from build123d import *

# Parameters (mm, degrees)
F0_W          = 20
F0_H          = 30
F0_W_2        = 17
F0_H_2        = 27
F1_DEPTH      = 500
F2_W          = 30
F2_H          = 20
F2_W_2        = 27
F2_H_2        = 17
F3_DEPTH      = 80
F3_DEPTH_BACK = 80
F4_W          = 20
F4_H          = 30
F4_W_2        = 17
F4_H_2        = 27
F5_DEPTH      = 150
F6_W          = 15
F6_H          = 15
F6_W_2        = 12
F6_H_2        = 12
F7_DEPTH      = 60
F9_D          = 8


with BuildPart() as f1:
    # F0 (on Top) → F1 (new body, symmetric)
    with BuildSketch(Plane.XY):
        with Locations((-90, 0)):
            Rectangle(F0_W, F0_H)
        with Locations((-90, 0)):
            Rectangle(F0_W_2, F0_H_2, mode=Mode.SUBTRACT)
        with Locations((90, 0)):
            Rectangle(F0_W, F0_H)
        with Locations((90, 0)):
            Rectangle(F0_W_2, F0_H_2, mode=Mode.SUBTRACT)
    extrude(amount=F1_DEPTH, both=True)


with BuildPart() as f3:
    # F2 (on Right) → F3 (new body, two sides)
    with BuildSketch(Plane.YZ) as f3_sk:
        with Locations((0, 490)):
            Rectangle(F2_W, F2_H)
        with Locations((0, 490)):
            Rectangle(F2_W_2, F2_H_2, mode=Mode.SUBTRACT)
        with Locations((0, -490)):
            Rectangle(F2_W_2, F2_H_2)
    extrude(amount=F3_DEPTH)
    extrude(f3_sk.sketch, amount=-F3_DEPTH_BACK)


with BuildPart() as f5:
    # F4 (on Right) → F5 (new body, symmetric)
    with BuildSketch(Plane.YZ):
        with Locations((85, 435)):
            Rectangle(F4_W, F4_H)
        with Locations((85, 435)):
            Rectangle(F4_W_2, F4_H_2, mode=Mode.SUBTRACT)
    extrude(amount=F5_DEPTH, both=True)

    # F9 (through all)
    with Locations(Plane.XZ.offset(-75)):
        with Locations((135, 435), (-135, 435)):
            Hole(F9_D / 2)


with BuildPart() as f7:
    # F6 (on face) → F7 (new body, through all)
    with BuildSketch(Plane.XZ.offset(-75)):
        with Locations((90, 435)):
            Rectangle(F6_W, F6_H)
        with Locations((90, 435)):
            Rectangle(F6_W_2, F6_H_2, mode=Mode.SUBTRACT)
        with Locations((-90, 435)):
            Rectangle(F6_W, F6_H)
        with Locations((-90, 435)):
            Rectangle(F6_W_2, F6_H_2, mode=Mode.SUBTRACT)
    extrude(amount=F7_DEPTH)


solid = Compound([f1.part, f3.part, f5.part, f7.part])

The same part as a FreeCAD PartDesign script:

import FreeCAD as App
import Part
import Sketcher

doc = App.newDocument("Part")
params = doc.addObject("Spreadsheet::Sheet", "Params")
for row, (alias, value) in enumerate([
    ("sketch1_width", "20 mm"),
    ("sketch1_width2", "17 mm"),
    ("sketch1_height", "30 mm"),
    ("sketch1_height2", "27 mm"),
    ("pad1_length", "1000 mm"),
    ("sketch2_width", "30 mm"),
    ("sketch2_width2", "27 mm"),
    ("sketch2_height", "20 mm"),
    ("sketch2_height2", "17 mm"),
    ("pad2_length", "80 mm"),
    ("pad2_length2", "80 mm"),
    ("sketch3_width", "20 mm"),
    ("sketch3_width2", "17 mm"),
    ("sketch3_height", "30 mm"),
    ("sketch3_height2", "27 mm"),
    ("pad3_length", "300 mm"),
    ("sketch4_diameter", "8 mm"),
    ("hole_diameter", "8 mm"),
    ("sketch5_width", "15 mm"),
    ("sketch5_width2", "12 mm"),
    ("pad4_length", "60 mm"),
], start=1):
    params.set(f"A{row}", alias)
    params.set(f"B{row}", "=" + value)
    params.setAlias(f"B{row}", alias)

body = doc.addObject("PartDesign::Body", "Body")
body.AllowCompound = True

sketch1 = body.newObject("Sketcher::SketchObject", "Sketch")
sketch1.AttachmentSupport = (doc.getObject("XY_Plane"), [""])
sketch1.MapMode = "FlatFace"
sketch1.addGeometry(Part.LineSegment(App.Vector(-100, 15, 0), App.Vector(-100, -15, 0)), False)
sketch1.addGeometry(Part.LineSegment(App.Vector(-100, -15, 0), App.Vector(-80, -15, 0)), False)
sketch1.addGeometry(Part.LineSegment(App.Vector(-80, -15, 0), App.Vector(-80, 15, 0)), False)
sketch1.addGeometry(Part.LineSegment(App.Vector(-80, 15, 0), App.Vector(-100, 15, 0)), False)
sketch1.addGeometry(Part.LineSegment(App.Vector(-81.5, -13.5, 0), App.Vector(-98.5, -13.5, 0)), False)
sketch1.addGeometry(Part.LineSegment(App.Vector(-98.5, -13.5, 0), App.Vector(-98.5, 13.5, 0)), False)
sketch1.addGeometry(Part.LineSegment(App.Vector(-98.5, 13.5, 0), App.Vector(-81.5, 13.5, 0)), False)
sketch1.addGeometry(Part.LineSegment(App.Vector(-81.5, 13.5, 0), App.Vector(-81.5, -13.5, 0)), False)
sketch1.addGeometry(Part.LineSegment(App.Vector(80, 15, 0), App.Vector(80, -15, 0)), False)
sketch1.addGeometry(Part.LineSegment(App.Vector(80, -15, 0), App.Vector(100, -15, 0)), False)
sketch1.addGeometry(Part.LineSegment(App.Vector(100, -15, 0), App.Vector(100, 15, 0)), False)
sketch1.addGeometry(Part.LineSegment(App.Vector(100, 15, 0), App.Vector(80, 15, 0)), False)
sketch1.addGeometry(Part.LineSegment(App.Vector(98.5, -13.5, 0), App.Vector(81.5, -13.5, 0)), False)
sketch1.addGeometry(Part.LineSegment(App.Vector(81.5, -13.5, 0), App.Vector(81.5, 13.5, 0)), False)
sketch1.addGeometry(Part.LineSegment(App.Vector(81.5, 13.5, 0), App.Vector(98.5, 13.5, 0)), False)
sketch1.addGeometry(Part.LineSegment(App.Vector(98.5, 13.5, 0), App.Vector(98.5, -13.5, 0)), False)
sketch1.addConstraint(Sketcher.Constraint("Coincident", 0, 2, 1, 1))
sketch1.addConstraint(Sketcher.Constraint("Coincident", 1, 2, 2, 1))
sketch1.addConstraint(Sketcher.Constraint("Coincident", 2, 2, 3, 1))
sketch1.addConstraint(Sketcher.Constraint("Coincident", 3, 2, 0, 1))
sketch1.addConstraint(Sketcher.Constraint("Coincident", 4, 2, 5, 1))
sketch1.addConstraint(Sketcher.Constraint("Coincident", 5, 2, 6, 1))
sketch1.addConstraint(Sketcher.Constraint("Coincident", 6, 2, 7, 1))
sketch1.addConstraint(Sketcher.Constraint("Coincident", 7, 2, 4, 1))
sketch1.addConstraint(Sketcher.Constraint("Coincident", 8, 2, 9, 1))
sketch1.addConstraint(Sketcher.Constraint("Coincident", 9, 2, 10, 1))
sketch1.addConstraint(Sketcher.Constraint("Coincident", 10, 2, 11, 1))
sketch1.addConstraint(Sketcher.Constraint("Coincident", 11, 2, 8, 1))
sketch1.addConstraint(Sketcher.Constraint("Coincident", 12, 2, 13, 1))
sketch1.addConstraint(Sketcher.Constraint("Coincident", 13, 2, 14, 1))
sketch1.addConstraint(Sketcher.Constraint("Coincident", 14, 2, 15, 1))
sketch1.addConstraint(Sketcher.Constraint("Coincident", 15, 2, 12, 1))
sketch1.addConstraint(Sketcher.Constraint("Vertical", 0))
sketch1.addConstraint(Sketcher.Constraint("Horizontal", 1))
sketch1.addConstraint(Sketcher.Constraint("Vertical", 2))
sketch1.addConstraint(Sketcher.Constraint("Horizontal", 3))
sketch1.addConstraint(Sketcher.Constraint("Horizontal", 4))
sketch1.addConstraint(Sketcher.Constraint("Vertical", 5))
sketch1.addConstraint(Sketcher.Constraint("Horizontal", 6))
sketch1.addConstraint(Sketcher.Constraint("Vertical", 7))
sketch1.addConstraint(Sketcher.Constraint("Vertical", 8))
sketch1.addConstraint(Sketcher.Constraint("Horizontal", 9))
sketch1.addConstraint(Sketcher.Constraint("Vertical", 10))
sketch1.addConstraint(Sketcher.Constraint("Horizontal", 11))
sketch1.addConstraint(Sketcher.Constraint("Horizontal", 12))
sketch1.addConstraint(Sketcher.Constraint("Vertical", 13))
sketch1.addConstraint(Sketcher.Constraint("Horizontal", 14))
sketch1.addConstraint(Sketcher.Constraint("Vertical", 15))
sketch1.addConstraint(Sketcher.Constraint("Symmetric", 2, 2, 8, 2, -1, 1))
sketch1.addConstraint(Sketcher.Constraint("Symmetric", 0, 2, 10, 2, -1, 1))
sketch1.addConstraint(Sketcher.Constraint("Symmetric", 6, 2, 12, 2, -1, 1))
sketch1.addConstraint(Sketcher.Constraint("Symmetric", 4, 2, 14, 2, -1, 1))
sketch1.addConstraint(Sketcher.Constraint("Horizontal", 1, 2, 8, 2))
sketch1.addConstraint(Sketcher.Constraint("Horizontal", 7, 2, 12, 2))
sketch1.addConstraint(Sketcher.Constraint("DistanceX", 1, 1, 1, 2, 20.0))
sketch1.addConstraint(Sketcher.Constraint("DistanceX", 4, 2, 4, 1, 17.0))
sketch1.addConstraint(Sketcher.Constraint("DistanceY", 0, 2, 0, 1, 30.0))
sketch1.addConstraint(Sketcher.Constraint("DistanceY", 5, 1, 5, 2, 27.0))
sketch1.addConstraint(Sketcher.Constraint("DistanceX", 0, 2, -1, 1, 100.0))
sketch1.addConstraint(Sketcher.Constraint("DistanceX", 4, 2, -1, 1, 98.5))
sketch1.setExpression("Constraints[38]", "Params.sketch1_width")
sketch1.setExpression("Constraints[39]", "Params.sketch1_width2")
sketch1.setExpression("Constraints[40]", "Params.sketch1_height")
sketch1.setExpression("Constraints[41]", "Params.sketch1_height2")
pad1 = body.newObject("PartDesign::Pad", "Pad")
pad1.Profile = sketch1
pad1.setExpression("Length", "Params.pad1_length")
pad1.Midplane = True
body2 = doc.addObject("PartDesign::Body", "Body001")
body2.AllowCompound = True

sketch2 = body2.newObject("Sketcher::SketchObject", "Sketch001")
sketch2.AttachmentSupport = (doc.getObject("YZ_Plane001"), [""])
sketch2.MapMode = "FlatFace"
sketch2.addGeometry(Part.LineSegment(App.Vector(-15, 500, 0), App.Vector(-15, 480, 0)), False)
sketch2.addGeometry(Part.LineSegment(App.Vector(-15, 480, 0), App.Vector(15, 480, 0)), False)
sketch2.addGeometry(Part.LineSegment(App.Vector(15, 480, 0), App.Vector(15, 500, 0)), False)
sketch2.addGeometry(Part.LineSegment(App.Vector(15, 500, 0), App.Vector(-15, 500, 0)), False)
sketch2.addGeometry(Part.LineSegment(App.Vector(13.5, 481.5, 0), App.Vector(-13.5, 481.5, 0)), False)
sketch2.addGeometry(Part.LineSegment(App.Vector(-13.5, 481.5, 0), App.Vector(-13.5, 498.5, 0)), False)
sketch2.addGeometry(Part.LineSegment(App.Vector(-13.5, 498.5, 0), App.Vector(13.5, 498.5, 0)), False)
sketch2.addGeometry(Part.LineSegment(App.Vector(13.5, 498.5, 0), App.Vector(13.5, 481.5, 0)), False)
sketch2.addGeometry(Part.LineSegment(App.Vector(-13.5, -481.5, 0), App.Vector(-13.5, -498.5, 0)), False)
sketch2.addGeometry(Part.LineSegment(App.Vector(-13.5, -498.5, 0), App.Vector(13.5, -498.5, 0)), False)
sketch2.addGeometry(Part.LineSegment(App.Vector(13.5, -498.5, 0), App.Vector(13.5, -481.5, 0)), False)
sketch2.addGeometry(Part.LineSegment(App.Vector(13.5, -481.5, 0), App.Vector(-13.5, -481.5, 0)), False)
sketch2.addConstraint(Sketcher.Constraint("Coincident", 0, 2, 1, 1))
sketch2.addConstraint(Sketcher.Constraint("Coincident", 1, 2, 2, 1))
sketch2.addConstraint(Sketcher.Constraint("Coincident", 2, 2, 3, 1))
sketch2.addConstraint(Sketcher.Constraint("Coincident", 3, 2, 0, 1))
sketch2.addConstraint(Sketcher.Constraint("Coincident", 4, 2, 5, 1))
sketch2.addConstraint(Sketcher.Constraint("Coincident", 5, 2, 6, 1))
sketch2.addConstraint(Sketcher.Constraint("Coincident", 6, 2, 7, 1))
sketch2.addConstraint(Sketcher.Constraint("Coincident", 7, 2, 4, 1))
sketch2.addConstraint(Sketcher.Constraint("Coincident", 8, 2, 9, 1))
sketch2.addConstraint(Sketcher.Constraint("Coincident", 9, 2, 10, 1))
sketch2.addConstraint(Sketcher.Constraint("Coincident", 10, 2, 11, 1))
sketch2.addConstraint(Sketcher.Constraint("Coincident", 11, 2, 8, 1))
sketch2.addConstraint(Sketcher.Constraint("Vertical", 0))
sketch2.addConstraint(Sketcher.Constraint("Horizontal", 1))
sketch2.addConstraint(Sketcher.Constraint("Vertical", 2))
sketch2.addConstraint(Sketcher.Constraint("Horizontal", 3))
sketch2.addConstraint(Sketcher.Constraint("Horizontal", 4))
sketch2.addConstraint(Sketcher.Constraint("Vertical", 5))
sketch2.addConstraint(Sketcher.Constraint("Horizontal", 6))
sketch2.addConstraint(Sketcher.Constraint("Vertical", 7))
sketch2.addConstraint(Sketcher.Constraint("Vertical", 8))
sketch2.addConstraint(Sketcher.Constraint("Horizontal", 9))
sketch2.addConstraint(Sketcher.Constraint("Vertical", 10))
sketch2.addConstraint(Sketcher.Constraint("Horizontal", 11))
sketch2.addConstraint(Sketcher.Constraint("Symmetric", 6, 2, 8, 2, -1, 1))
sketch2.addConstraint(Sketcher.Constraint("Symmetric", 4, 2, 10, 2, -1, 1))
sketch2.addConstraint(Sketcher.Constraint("Vertical", 5, 2, 8, 2))
sketch2.addConstraint(Sketcher.Constraint("DistanceX", 1, 1, 1, 2, 30.0))
sketch2.addConstraint(Sketcher.Constraint("DistanceX", 4, 2, 4, 1, 27.0))
sketch2.addConstraint(Sketcher.Constraint("DistanceY", 0, 2, 0, 1, 20.0))
sketch2.addConstraint(Sketcher.Constraint("DistanceY", 5, 1, 5, 2, 17.0))
sketch2.addConstraint(Sketcher.Constraint("DistanceX", 0, 2, -1, 1, 15.0))
sketch2.addConstraint(Sketcher.Constraint("DistanceY", -1, 1, 0, 2, 480.0))
sketch2.addConstraint(Sketcher.Constraint("DistanceY", 8, 2, 4, 2, 980.0))
sketch2.setExpression("Constraints[27]", "Params.sketch2_width")
sketch2.setExpression("Constraints[28]", "Params.sketch2_width2")
sketch2.setExpression("Constraints[29]", "Params.sketch2_height")
sketch2.setExpression("Constraints[30]", "Params.sketch2_height2")
pad2 = body2.newObject("PartDesign::Pad", "Pad001")
pad2.Profile = sketch2
pad2.Type = "TwoLengths"
pad2.setExpression("Length", "Params.pad2_length")
pad2.setExpression("Length2", "Params.pad2_length2")
body3 = doc.addObject("PartDesign::Body", "Body002")

sketch3 = body3.newObject("Sketcher::SketchObject", "Sketch002")
sketch3.AttachmentSupport = (doc.getObject("YZ_Plane002"), [""])
sketch3.MapMode = "FlatFace"
sketch3.addGeometry(Part.LineSegment(App.Vector(75, 450, 0), App.Vector(75, 420, 0)), False)
sketch3.addGeometry(Part.LineSegment(App.Vector(75, 420, 0), App.Vector(95, 420, 0)), False)
sketch3.addGeometry(Part.LineSegment(App.Vector(95, 420, 0), App.Vector(95, 450, 0)), False)
sketch3.addGeometry(Part.LineSegment(App.Vector(95, 450, 0), App.Vector(75, 450, 0)), False)
sketch3.addGeometry(Part.LineSegment(App.Vector(93.5, 421.5, 0), App.Vector(76.5, 421.5, 0)), False)
sketch3.addGeometry(Part.LineSegment(App.Vector(76.5, 421.5, 0), App.Vector(76.5, 448.5, 0)), False)
sketch3.addGeometry(Part.LineSegment(App.Vector(76.5, 448.5, 0), App.Vector(93.5, 448.5, 0)), False)
sketch3.addGeometry(Part.LineSegment(App.Vector(93.5, 448.5, 0), App.Vector(93.5, 421.5, 0)), False)
sketch3.addConstraint(Sketcher.Constraint("Coincident", 0, 2, 1, 1))
sketch3.addConstraint(Sketcher.Constraint("Coincident", 1, 2, 2, 1))
sketch3.addConstraint(Sketcher.Constraint("Coincident", 2, 2, 3, 1))
sketch3.addConstraint(Sketcher.Constraint("Coincident", 3, 2, 0, 1))
sketch3.addConstraint(Sketcher.Constraint("Coincident", 4, 2, 5, 1))
sketch3.addConstraint(Sketcher.Constraint("Coincident", 5, 2, 6, 1))
sketch3.addConstraint(Sketcher.Constraint("Coincident", 6, 2, 7, 1))
sketch3.addConstraint(Sketcher.Constraint("Coincident", 7, 2, 4, 1))
sketch3.addConstraint(Sketcher.Constraint("Vertical", 0))
sketch3.addConstraint(Sketcher.Constraint("Horizontal", 1))
sketch3.addConstraint(Sketcher.Constraint("Vertical", 2))
sketch3.addConstraint(Sketcher.Constraint("Horizontal", 3))
sketch3.addConstraint(Sketcher.Constraint("Horizontal", 4))
sketch3.addConstraint(Sketcher.Constraint("Vertical", 5))
sketch3.addConstraint(Sketcher.Constraint("Horizontal", 6))
sketch3.addConstraint(Sketcher.Constraint("Vertical", 7))
sketch3.addConstraint(Sketcher.Constraint("DistanceX", 1, 1, 1, 2, 20.0))
sketch3.addConstraint(Sketcher.Constraint("DistanceX", 4, 2, 4, 1, 17.0))
sketch3.addConstraint(Sketcher.Constraint("DistanceY", 0, 2, 0, 1, 30.0))
sketch3.addConstraint(Sketcher.Constraint("DistanceY", 5, 1, 5, 2, 27.0))
sketch3.addConstraint(Sketcher.Constraint("DistanceX", -1, 1, 0, 2, 75.0))
sketch3.addConstraint(Sketcher.Constraint("DistanceY", -1, 1, 0, 2, 420.0))
sketch3.addConstraint(Sketcher.Constraint("DistanceX", -1, 1, 4, 2, 76.5))
sketch3.addConstraint(Sketcher.Constraint("DistanceY", -1, 1, 4, 2, 421.5))
sketch3.setExpression("Constraints[16]", "Params.sketch3_width")
sketch3.setExpression("Constraints[17]", "Params.sketch3_width2")
sketch3.setExpression("Constraints[18]", "Params.sketch3_height")
sketch3.setExpression("Constraints[19]", "Params.sketch3_height2")
pad3 = body3.newObject("PartDesign::Pad", "Pad002")
pad3.Profile = sketch3
pad3.setExpression("Length", "Params.pad3_length")
pad3.Midplane = True

sketch4 = body3.newObject("Sketcher::SketchObject", "Sketch003")
sketch4.AttachmentSupport = (doc.getObject("XZ_Plane002"), [""])
sketch4.MapMode = "FlatFace"
sketch4.AttachmentOffset = App.Placement(App.Vector(0, 0, -75), App.Rotation())
sketch4.addGeometry(Part.Circle(App.Vector(135, 435, 0), App.Vector(0, 0, 1), 4), False)
sketch4.addGeometry(Part.Circle(App.Vector(-135, 435, 0), App.Vector(0, 0, 1), 4), False)
sketch4.addConstraint(Sketcher.Constraint("Equal", 0, 1))
sketch4.addConstraint(Sketcher.Constraint("Symmetric", 0, 3, 1, 3, -2))
sketch4.addConstraint(Sketcher.Constraint("Diameter", 0, 8.0))
sketch4.addConstraint(Sketcher.Constraint("DistanceX", -1, 1, 0, 3, 135.0))
sketch4.addConstraint(Sketcher.Constraint("DistanceY", -1, 1, 0, 3, 435.0))
sketch4.setExpression("Constraints[2]", "Params.sketch4_diameter")
doc.recompute()
hole = body3.newObject("PartDesign::Hole", "Hole")
hole.Profile = sketch4
hole.ThreadType = "None"
hole.setExpression("Diameter", "Params.hole_diameter")
hole.DepthType = "ThroughAll"
body4 = doc.addObject("PartDesign::Body", "Body003")
body4.AllowCompound = True

sketch5 = body4.newObject("Sketcher::SketchObject", "Sketch004")
sketch5.AttachmentSupport = (doc.getObject("XZ_Plane003"), [""])
sketch5.MapMode = "FlatFace"
sketch5.AttachmentOffset = App.Placement(App.Vector(0, 0, -75), App.Rotation())
sketch5.addGeometry(Part.LineSegment(App.Vector(82.5, 442.5, 0), App.Vector(82.5, 427.5, 0)), False)
sketch5.addGeometry(Part.LineSegment(App.Vector(82.5, 427.5, 0), App.Vector(97.5, 427.5, 0)), False)
sketch5.addGeometry(Part.LineSegment(App.Vector(97.5, 427.5, 0), App.Vector(97.5, 442.5, 0)), False)
sketch5.addGeometry(Part.LineSegment(App.Vector(97.5, 442.5, 0), App.Vector(82.5, 442.5, 0)), False)
sketch5.addGeometry(Part.LineSegment(App.Vector(96, 429, 0), App.Vector(84, 429, 0)), False)
sketch5.addGeometry(Part.LineSegment(App.Vector(84, 429, 0), App.Vector(84, 441, 0)), False)
sketch5.addGeometry(Part.LineSegment(App.Vector(84, 441, 0), App.Vector(96, 441, 0)), False)
sketch5.addGeometry(Part.LineSegment(App.Vector(96, 441, 0), App.Vector(96, 429, 0)), False)
sketch5.addGeometry(Part.LineSegment(App.Vector(-97.5, 442.5, 0), App.Vector(-97.5, 427.5, 0)), False)
sketch5.addGeometry(Part.LineSegment(App.Vector(-97.5, 427.5, 0), App.Vector(-82.5, 427.5, 0)), False)
sketch5.addGeometry(Part.LineSegment(App.Vector(-82.5, 427.5, 0), App.Vector(-82.5, 442.5, 0)), False)
sketch5.addGeometry(Part.LineSegment(App.Vector(-82.5, 442.5, 0), App.Vector(-97.5, 442.5, 0)), False)
sketch5.addGeometry(Part.LineSegment(App.Vector(-84, 429, 0), App.Vector(-96, 429, 0)), False)
sketch5.addGeometry(Part.LineSegment(App.Vector(-96, 429, 0), App.Vector(-96, 441, 0)), False)
sketch5.addGeometry(Part.LineSegment(App.Vector(-96, 441, 0), App.Vector(-84, 441, 0)), False)
sketch5.addGeometry(Part.LineSegment(App.Vector(-84, 441, 0), App.Vector(-84, 429, 0)), False)
sketch5.addConstraint(Sketcher.Constraint("Coincident", 0, 2, 1, 1))
sketch5.addConstraint(Sketcher.Constraint("Coincident", 1, 2, 2, 1))
sketch5.addConstraint(Sketcher.Constraint("Coincident", 2, 2, 3, 1))
sketch5.addConstraint(Sketcher.Constraint("Coincident", 3, 2, 0, 1))
sketch5.addConstraint(Sketcher.Constraint("Coincident", 4, 2, 5, 1))
sketch5.addConstraint(Sketcher.Constraint("Coincident", 5, 2, 6, 1))
sketch5.addConstraint(Sketcher.Constraint("Coincident", 6, 2, 7, 1))
sketch5.addConstraint(Sketcher.Constraint("Coincident", 7, 2, 4, 1))
sketch5.addConstraint(Sketcher.Constraint("Coincident", 8, 2, 9, 1))
sketch5.addConstraint(Sketcher.Constraint("Coincident", 9, 2, 10, 1))
sketch5.addConstraint(Sketcher.Constraint("Coincident", 10, 2, 11, 1))
sketch5.addConstraint(Sketcher.Constraint("Coincident", 11, 2, 8, 1))
sketch5.addConstraint(Sketcher.Constraint("Coincident", 12, 2, 13, 1))
sketch5.addConstraint(Sketcher.Constraint("Coincident", 13, 2, 14, 1))
sketch5.addConstraint(Sketcher.Constraint("Coincident", 14, 2, 15, 1))
sketch5.addConstraint(Sketcher.Constraint("Coincident", 15, 2, 12, 1))
sketch5.addConstraint(Sketcher.Constraint("Vertical", 0))
sketch5.addConstraint(Sketcher.Constraint("Horizontal", 1))
sketch5.addConstraint(Sketcher.Constraint("Vertical", 2))
sketch5.addConstraint(Sketcher.Constraint("Horizontal", 3))
sketch5.addConstraint(Sketcher.Constraint("Horizontal", 4))
sketch5.addConstraint(Sketcher.Constraint("Vertical", 5))
sketch5.addConstraint(Sketcher.Constraint("Horizontal", 6))
sketch5.addConstraint(Sketcher.Constraint("Vertical", 7))
sketch5.addConstraint(Sketcher.Constraint("Vertical", 8))
sketch5.addConstraint(Sketcher.Constraint("Horizontal", 9))
sketch5.addConstraint(Sketcher.Constraint("Vertical", 10))
sketch5.addConstraint(Sketcher.Constraint("Horizontal", 11))
sketch5.addConstraint(Sketcher.Constraint("Horizontal", 12))
sketch5.addConstraint(Sketcher.Constraint("Vertical", 13))
sketch5.addConstraint(Sketcher.Constraint("Horizontal", 14))
sketch5.addConstraint(Sketcher.Constraint("Vertical", 15))
sketch5.addConstraint(Sketcher.Constraint("Symmetric", 1, 2, 8, 2, -2))
sketch5.addConstraint(Sketcher.Constraint("Symmetric", 3, 2, 10, 2, -2))
sketch5.addConstraint(Sketcher.Constraint("Symmetric", 7, 2, 12, 2, -2))
sketch5.addConstraint(Sketcher.Constraint("Symmetric", 5, 2, 14, 2, -2))
sketch5.addConstraint(Sketcher.Constraint("Equal", 11, 0))
sketch5.addConstraint(Sketcher.Constraint("Equal", 14, 5))
sketch5.addConstraint(Sketcher.Constraint("DistanceX", 1, 1, 1, 2, 15.0))
sketch5.addConstraint(Sketcher.Constraint("DistanceX", 4, 2, 4, 1, 12.0))
sketch5.addConstraint(Sketcher.Constraint("DistanceX", -1, 1, 4, 2, 84.0))
sketch5.addConstraint(Sketcher.Constraint("DistanceY", -1, 1, 4, 2, 429.0))
sketch5.addConstraint(Sketcher.Constraint("DistanceX", 8, 2, 0, 2, 180.0))
sketch5.addConstraint(Sketcher.Constraint("DistanceY", -1, 1, 0, 2, 427.5))
sketch5.setExpression("Constraints[38]", "Params.sketch5_width")
sketch5.setExpression("Constraints[39]", "Params.sketch5_width2")
pad4 = body4.newObject("PartDesign::Pad", "Pad003")
pad4.Profile = sketch5
pad4.setExpression("Length", "Params.pad4_length")

doc.recompute()
